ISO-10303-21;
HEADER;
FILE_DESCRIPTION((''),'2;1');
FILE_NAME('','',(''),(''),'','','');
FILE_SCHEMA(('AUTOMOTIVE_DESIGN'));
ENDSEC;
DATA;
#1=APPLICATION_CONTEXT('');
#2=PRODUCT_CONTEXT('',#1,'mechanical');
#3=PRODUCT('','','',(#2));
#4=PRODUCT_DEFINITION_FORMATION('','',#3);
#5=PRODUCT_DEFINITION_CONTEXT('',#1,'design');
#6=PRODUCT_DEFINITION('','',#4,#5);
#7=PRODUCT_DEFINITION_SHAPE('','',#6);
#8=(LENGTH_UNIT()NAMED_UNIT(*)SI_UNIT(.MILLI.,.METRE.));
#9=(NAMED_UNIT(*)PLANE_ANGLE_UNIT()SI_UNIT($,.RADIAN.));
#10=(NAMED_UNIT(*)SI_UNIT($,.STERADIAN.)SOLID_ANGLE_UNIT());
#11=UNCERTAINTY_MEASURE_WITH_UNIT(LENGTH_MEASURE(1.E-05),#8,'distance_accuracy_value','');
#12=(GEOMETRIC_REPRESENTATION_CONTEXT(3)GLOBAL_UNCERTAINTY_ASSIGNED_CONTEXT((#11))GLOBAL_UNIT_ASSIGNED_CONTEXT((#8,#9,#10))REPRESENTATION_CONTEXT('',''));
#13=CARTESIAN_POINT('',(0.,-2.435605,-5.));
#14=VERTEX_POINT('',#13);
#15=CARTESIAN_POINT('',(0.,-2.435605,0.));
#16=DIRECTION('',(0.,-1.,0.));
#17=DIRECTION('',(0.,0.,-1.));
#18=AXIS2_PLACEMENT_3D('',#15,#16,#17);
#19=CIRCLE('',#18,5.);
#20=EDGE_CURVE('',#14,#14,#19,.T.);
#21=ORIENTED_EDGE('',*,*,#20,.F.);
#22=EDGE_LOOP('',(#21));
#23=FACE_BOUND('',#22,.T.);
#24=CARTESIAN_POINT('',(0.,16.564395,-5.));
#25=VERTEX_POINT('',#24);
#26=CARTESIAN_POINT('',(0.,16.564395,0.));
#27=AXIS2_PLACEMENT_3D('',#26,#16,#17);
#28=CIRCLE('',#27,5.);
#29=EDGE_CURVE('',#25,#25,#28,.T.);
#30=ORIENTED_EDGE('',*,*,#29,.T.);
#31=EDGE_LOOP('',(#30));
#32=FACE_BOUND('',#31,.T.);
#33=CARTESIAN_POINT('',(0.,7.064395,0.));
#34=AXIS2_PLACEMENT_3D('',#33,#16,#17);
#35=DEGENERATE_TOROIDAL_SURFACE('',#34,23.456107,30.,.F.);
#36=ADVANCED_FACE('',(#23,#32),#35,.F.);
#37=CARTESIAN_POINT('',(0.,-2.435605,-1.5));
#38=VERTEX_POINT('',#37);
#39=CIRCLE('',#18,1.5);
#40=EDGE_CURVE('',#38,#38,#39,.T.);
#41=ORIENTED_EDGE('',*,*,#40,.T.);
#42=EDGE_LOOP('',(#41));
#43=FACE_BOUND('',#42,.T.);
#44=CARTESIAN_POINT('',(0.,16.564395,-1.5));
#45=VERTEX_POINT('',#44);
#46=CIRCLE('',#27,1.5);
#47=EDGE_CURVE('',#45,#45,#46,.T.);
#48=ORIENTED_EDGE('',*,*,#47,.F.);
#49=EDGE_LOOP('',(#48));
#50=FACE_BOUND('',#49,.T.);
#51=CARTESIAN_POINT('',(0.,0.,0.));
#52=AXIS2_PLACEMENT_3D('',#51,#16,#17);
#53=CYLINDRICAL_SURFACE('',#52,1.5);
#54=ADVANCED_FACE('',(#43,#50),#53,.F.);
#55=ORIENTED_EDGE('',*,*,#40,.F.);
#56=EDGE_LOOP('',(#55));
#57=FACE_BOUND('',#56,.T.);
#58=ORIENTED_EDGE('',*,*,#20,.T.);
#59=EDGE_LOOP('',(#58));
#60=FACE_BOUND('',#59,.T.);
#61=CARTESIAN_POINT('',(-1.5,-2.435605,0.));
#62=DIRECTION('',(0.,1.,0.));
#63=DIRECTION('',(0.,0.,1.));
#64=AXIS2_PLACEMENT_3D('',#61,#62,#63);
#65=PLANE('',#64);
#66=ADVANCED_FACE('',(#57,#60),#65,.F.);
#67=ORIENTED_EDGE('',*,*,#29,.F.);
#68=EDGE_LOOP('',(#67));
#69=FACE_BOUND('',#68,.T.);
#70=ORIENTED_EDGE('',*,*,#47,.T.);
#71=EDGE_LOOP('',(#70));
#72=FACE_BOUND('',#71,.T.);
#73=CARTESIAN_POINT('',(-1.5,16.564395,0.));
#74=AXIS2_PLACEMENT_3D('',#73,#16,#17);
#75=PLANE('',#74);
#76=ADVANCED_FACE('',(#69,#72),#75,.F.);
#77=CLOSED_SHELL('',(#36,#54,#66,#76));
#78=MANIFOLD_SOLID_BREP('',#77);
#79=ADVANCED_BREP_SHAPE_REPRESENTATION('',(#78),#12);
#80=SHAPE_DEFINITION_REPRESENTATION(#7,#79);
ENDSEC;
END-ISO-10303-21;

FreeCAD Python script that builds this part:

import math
import FreeCAD as App
import Part
import Sketcher
from FreeCAD import Vector

doc = App.newDocument("Part")
body = doc.addObject("PartDesign::Body", "Body")

# Sketch on XY plane
sketch1 = body.newObject("Sketcher::SketchObject", "Sketch")
sketch1.AttachmentSupport = (doc.getObject("XY_Plane"), [""])
sketch1.MapMode = "FlatFace"
sketch1.addGeometry([
    Part.LineSegment(Vector(-1.5, -2.435605, 0), Vector(-1.5, 16.564395, 0)),
    Part.LineSegment(Vector(-1.5, 16.564395, 0), Vector(-5, 16.564395, 0)),
    Part.ArcOfCircle(Part.Circle(Vector(23.456107, 7.064395, 0), Vector(0, 0, 1), 30), math.radians(161.538542), math.radians(198.461458)),
    Part.LineSegment(Vector(-5, -2.435605, 0), Vector(-1.5, -2.435605, 0)),
], False)
sketch1.addConstraint([
    Sketcher.Constraint("Coincident", 0, 2, 1, 1),
    Sketcher.Constraint("Coincident", 1, 2, 2, 1),
    Sketcher.Constraint("Coincident", 2, 2, 3, 1),
    Sketcher.Constraint("Coincident", 3, 2, 0, 1),
    Sketcher.Constraint("Vertical", 0),
    Sketcher.Constraint("Horizontal", 1),
    Sketcher.Constraint("Horizontal", 3),
    Sketcher.Constraint("Vertical", 1, 2, 2, 2),
    Sketcher.Constraint("Radius", 2, 30.0),
    Sketcher.Constraint("DistanceY", 0, 1, 0, 2, 19.0),
    Sketcher.Constraint("DistanceX", 1, 2, 1, 1, 3.5),
    Sketcher.Constraint("DistanceX", 1, 2, -1, 1, 5.0),
    Sketcher.Constraint("DistanceY", -1, 1, 2, 3, 7.064395),
])
revolution = body.newObject("PartDesign::Revolution", "Revolution")
revolution.Profile = sketch1
revolution.ReferenceAxis = (sketch1, ["V_Axis"])
revolution.Angle = 360

doc.recompute()
